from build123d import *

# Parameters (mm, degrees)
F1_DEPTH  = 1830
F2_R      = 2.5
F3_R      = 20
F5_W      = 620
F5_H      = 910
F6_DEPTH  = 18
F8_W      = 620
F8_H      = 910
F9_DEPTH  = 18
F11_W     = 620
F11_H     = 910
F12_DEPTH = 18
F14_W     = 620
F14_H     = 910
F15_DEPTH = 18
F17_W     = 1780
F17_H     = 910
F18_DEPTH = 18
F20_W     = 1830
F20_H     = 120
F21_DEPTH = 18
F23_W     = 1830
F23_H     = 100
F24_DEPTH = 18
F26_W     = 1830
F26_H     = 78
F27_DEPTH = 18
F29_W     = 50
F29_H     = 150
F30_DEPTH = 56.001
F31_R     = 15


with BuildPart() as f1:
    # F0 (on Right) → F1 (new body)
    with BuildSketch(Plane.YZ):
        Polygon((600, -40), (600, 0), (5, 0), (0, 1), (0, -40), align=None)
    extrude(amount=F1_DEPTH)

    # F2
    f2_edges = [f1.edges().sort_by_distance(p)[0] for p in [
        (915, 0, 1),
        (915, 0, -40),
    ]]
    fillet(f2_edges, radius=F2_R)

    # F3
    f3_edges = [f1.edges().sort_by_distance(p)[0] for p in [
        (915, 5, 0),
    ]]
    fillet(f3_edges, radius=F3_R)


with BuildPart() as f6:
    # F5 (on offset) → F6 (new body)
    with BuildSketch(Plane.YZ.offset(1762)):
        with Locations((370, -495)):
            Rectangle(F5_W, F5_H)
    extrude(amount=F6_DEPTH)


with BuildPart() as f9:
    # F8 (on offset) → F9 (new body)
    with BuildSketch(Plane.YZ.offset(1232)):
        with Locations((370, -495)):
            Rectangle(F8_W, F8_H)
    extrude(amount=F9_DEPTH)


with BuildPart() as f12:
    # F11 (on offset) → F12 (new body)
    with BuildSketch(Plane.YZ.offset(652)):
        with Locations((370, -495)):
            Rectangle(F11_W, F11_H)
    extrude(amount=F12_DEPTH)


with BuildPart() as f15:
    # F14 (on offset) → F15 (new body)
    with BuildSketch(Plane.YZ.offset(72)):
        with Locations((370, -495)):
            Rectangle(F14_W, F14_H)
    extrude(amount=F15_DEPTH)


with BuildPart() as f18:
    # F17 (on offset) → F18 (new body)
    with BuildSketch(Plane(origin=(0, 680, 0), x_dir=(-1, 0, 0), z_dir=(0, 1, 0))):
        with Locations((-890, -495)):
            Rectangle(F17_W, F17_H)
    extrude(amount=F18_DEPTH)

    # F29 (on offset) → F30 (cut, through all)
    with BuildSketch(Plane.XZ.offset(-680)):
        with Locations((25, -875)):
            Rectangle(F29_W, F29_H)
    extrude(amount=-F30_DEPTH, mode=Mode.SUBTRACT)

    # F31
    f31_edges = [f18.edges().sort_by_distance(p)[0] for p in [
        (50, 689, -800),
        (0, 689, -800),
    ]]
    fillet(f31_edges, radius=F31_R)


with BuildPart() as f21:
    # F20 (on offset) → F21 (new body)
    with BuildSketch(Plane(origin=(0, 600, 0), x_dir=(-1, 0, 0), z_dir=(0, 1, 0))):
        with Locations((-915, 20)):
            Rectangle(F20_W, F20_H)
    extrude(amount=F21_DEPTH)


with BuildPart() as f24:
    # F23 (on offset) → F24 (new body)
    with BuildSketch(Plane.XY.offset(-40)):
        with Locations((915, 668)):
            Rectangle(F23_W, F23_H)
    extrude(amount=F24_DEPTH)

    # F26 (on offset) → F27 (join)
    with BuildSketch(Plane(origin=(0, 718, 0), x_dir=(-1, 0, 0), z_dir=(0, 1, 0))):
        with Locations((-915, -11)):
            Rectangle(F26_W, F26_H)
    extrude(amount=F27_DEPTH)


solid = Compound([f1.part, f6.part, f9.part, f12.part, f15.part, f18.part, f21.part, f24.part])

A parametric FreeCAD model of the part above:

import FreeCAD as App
import Part
import Sketcher


def edges_at(feature, points):
    """Names of the edges that pass closest to the given points."""
    edges = feature.Shape.Edges
    near = lambda p: min(range(len(edges)), key=lambda i: edges[i].distToShape(Part.Vertex(*p))[0])
    return sorted({f"Edge{near(p) + 1}" for p in points})


def add_polygon(sketch, points):
    """Adds a closed chain of lines whose ends are joined by coincident constraints."""
    first, n = sketch.GeometryCount, len(points)
    for a, b in zip(points, points[1:] + points[:1]):
        sketch.addGeometry(Part.LineSegment(App.Vector(*a, 0), App.Vector(*b, 0)), False)
    for i in range(n):
        sketch.addConstraint(Sketcher.Constraint("Coincident", first + i, 2, first + (i + 1) % n, 1))

doc = App.newDocument("Part")
body = doc.addObject("PartDesign::Body", "Body")

# Sketch on YZ plane
sketch1 = body.newObject("Sketcher::SketchObject", "Sketch")
sketch1.AttachmentSupport = (doc.getObject("YZ_Plane"), [""])
sketch1.MapMode = "FlatFace"
add_polygon(sketch1, [(600, -40), (600, 0), (5, 0), (0, 1), (0, -40)])  # lines 0-4
sketch1.addConstraint(Sketcher.Constraint("Vertical", 0))
sketch1.addConstraint(Sketcher.Constraint("Horizontal", 1))
sketch1.addConstraint(Sketcher.Constraint("Vertical", 3))
sketch1.addConstraint(Sketcher.Constraint("Horizontal", 4))
sketch1.addConstraint(Sketcher.Constraint("PointOnObject", 0, 2, -1))
sketch1.addConstraint(Sketcher.Constraint("PointOnObject", 2, 2, -2))
sketch1.addConstraint(Sketcher.Constraint("DistanceX", 1, 2, 1, 1, 595.0))
sketch1.addConstraint(Sketcher.Constraint("DistanceX", 4, 1, 4, 2, 600.0))
sketch1.addConstraint(Sketcher.Constraint("DistanceY", 0, 1, 0, 2, 40.0))
sketch1.addConstraint(Sketcher.Constraint("DistanceY", 3, 2, 3, 1, 41.0))
pad1 = body.newObject("PartDesign::Pad", "Pad")
pad1.Profile = sketch1
pad1.Length = 1830
doc.recompute()

fillet = body.newObject("PartDesign::Fillet", "Fillet")
fillet.Base = (pad1, edges_at(pad1, [(915, 0, 1), (915, 0, -40)]))
fillet.Radius = 2.5
doc.recompute()

fillet2 = body.newObject("PartDesign::Fillet", "Fillet001")
fillet2.Base = (fillet, edges_at(fillet, [(915, 5, 0)]))
fillet2.Radius = 20
body2 = doc.addObject("PartDesign::Body", "Body001")

# Sketch on YZ plane
sketch2 = body2.newObject("Sketcher::SketchObject", "Sketch001")
sketch2.AttachmentSupport = (doc.getObject("YZ_Plane001"), [""])
sketch2.MapMode = "FlatFace"
sketch2.AttachmentOffset = App.Placement(App.Vector(0, 0, 1762), App.Rotation())
add_polygon(sketch2, [(60, -40), (60, -950), (680, -950), (680, -40)])  # lines 0-3
sketch2.addConstraint(Sketcher.Constraint("Vertical", 0))
sketch2.addConstraint(Sketcher.Constraint("Horizontal", 1))
sketch2.addConstraint(Sketcher.Constraint("Vertical", 2))
sketch2.addConstraint(Sketcher.Constraint("Horizontal", 3))
sketch2.addConstraint(Sketcher.Constraint("DistanceX", 1, 1, 1, 2, 620.0))
sketch2.addConstraint(Sketcher.Constraint("DistanceY", 0, 2, 0, 1, 910.0))
sketch2.addConstraint(Sketcher.Constraint("DistanceX", -1, 1, 0, 2, 60.0))
sketch2.addConstraint(Sketcher.Constraint("DistanceY", 0, 2, -1, 1, 950.0))
pad2 = body2.newObject("PartDesign::Pad", "Pad001")
pad2.Profile = sketch2
pad2.Length = 18
body3 = doc.addObject("PartDesign::Body", "Body002")

# Sketch on YZ plane
sketch3 = body3.newObject("Sketcher::SketchObject", "Sketch002")
sketch3.AttachmentSupport = (doc.getObject("YZ_Plane002"), [""])
sketch3.MapMode = "FlatFace"
sketch3.AttachmentOffset = App.Placement(App.Vector(0, 0, 1232), App.Rotation())
add_polygon(sketch3, [(60, -40), (60, -950), (680, -950), (680, -40)])  # lines 0-3
sketch3.addConstraint(Sketcher.Constraint("Vertical", 0))
sketch3.addConstraint(Sketcher.Constraint("Horizontal", 1))
sketch3.addConstraint(Sketcher.Constraint("Vertical", 2))
sketch3.addConstraint(Sketcher.Constraint("Horizontal", 3))
sketch3.addConstraint(Sketcher.Constraint("DistanceX", 1, 1, 1, 2, 620.0))
sketch3.addConstraint(Sketcher.Constraint("DistanceY", 0, 2, 0, 1, 910.0))
sketch3.addConstraint(Sketcher.Constraint("DistanceX", -1, 1, 0, 2, 60.0))
sketch3.addConstraint(Sketcher.Constraint("DistanceY", 0, 2, -1, 1, 950.0))
pad3 = body3.newObject("PartDesign::Pad", "Pad002")
pad3.Profile = sketch3
pad3.Length = 18
body4 = doc.addObject("PartDesign::Body", "Body003")

# Sketch on YZ plane
sketch4 = body4.newObject("Sketcher::SketchObject", "Sketch003")
sketch4.AttachmentSupport = (doc.getObject("YZ_Plane003"), [""])
sketch4.MapMode = "FlatFace"
sketch4.AttachmentOffset = App.Placement(App.Vector(0, 0, 652), App.Rotation())
add_polygon(sketch4, [(60, -40), (60, -950), (680, -950), (680, -40)])  # lines 0-3
sketch4.addConstraint(Sketcher.Constraint("Vertical", 0))
sketch4.addConstraint(Sketcher.Constraint("Horizontal", 1))
sketch4.addConstraint(Sketcher.Constraint("Vertical", 2))
sketch4.addConstraint(Sketcher.Constraint("Horizontal", 3))
sketch4.addConstraint(Sketcher.Constraint("DistanceX", 1, 1, 1, 2, 620.0))
sketch4.addConstraint(Sketcher.Constraint("DistanceY", 0, 2, 0, 1, 910.0))
sketch4.addConstraint(Sketcher.Constraint("DistanceX", -1, 1, 0, 2, 60.0))
sketch4.addConstraint(Sketcher.Constraint("DistanceY", 0, 2, -1, 1, 950.0))
pad4 = body4.newObject("PartDesign::Pad", "Pad003")
pad4.Profile = sketch4
pad4.Length = 18
body5 = doc.addObject("PartDesign::Body", "Body004")

# Sketch on YZ plane
sketch5 = body5.newObject("Sketcher::SketchObject", "Sketch004")
sketch5.AttachmentSupport = (doc.getObject("YZ_Plane004"), [""])
sketch5.MapMode = "FlatFace"
sketch5.AttachmentOffset = App.Placement(App.Vector(0, 0, 72), App.Rotation())
add_polygon(sketch5, [(60, -40), (60, -950), (680, -950), (680, -40)])  # lines 0-3
sketch5.addConstraint(Sketcher.Constraint("Vertical", 0))
sketch5.addConstraint(Sketcher.Constraint("Horizontal", 1))
sketch5.addConstraint(Sketcher.Constraint("Vertical", 2))
sketch5.addConstraint(Sketcher.Constraint("Horizontal", 3))
sketch5.addConstraint(Sketcher.Constraint("DistanceX", 1, 1, 1, 2, 620.0))
sketch5.addConstraint(Sketcher.Constraint("DistanceY", 0, 2, 0, 1, 910.0))
sketch5.addConstraint(Sketcher.Constraint("DistanceX", -1, 1, 0, 2, 60.0))
sketch5.addConstraint(Sketcher.Constraint("DistanceY", 0, 2, -1, 1, 950.0))
pad5 = body5.newObject("PartDesign::Pad", "Pad004")
pad5.Profile = sketch5
pad5.Length = 18
body6 = doc.addObject("PartDesign::Body", "Body005")

# Sketch on XZ plane
sketch6 = body6.newObject("Sketcher::SketchObject", "Sketch005")
sketch6.AttachmentSupport = (doc.getObject("XZ_Plane005"), [""])
sketch6.MapMode = "FlatFace"
sketch6.AttachmentOffset = App.Placement(App.Vector(0, 0, -680), App.Rotation())
add_polygon(sketch6, [(1780, -40), (1780, -950), (0, -950), (0, -40)])  # lines 0-3
sketch6.addConstraint(Sketcher.Constraint("Vertical", 0))
sketch6.addConstraint(Sketcher.Constraint("Horizontal", 1))
sketch6.addConstraint(Sketcher.Constraint("Vertical", 2))
sketch6.addConstraint(Sketcher.Constraint("Horizontal", 3))
sketch6.addConstraint(Sketcher.Constraint("PointOnObject", 1, 2, -2))
sketch6.addConstraint(Sketcher.Constraint("DistanceX", 1, 2, 1, 1, 1780.0))
sketch6.addConstraint(Sketcher.Constraint("DistanceY", 0, 2, 0, 1, 910.0))
sketch6.addConstraint(Sketcher.Constraint("DistanceY", 0, 2, -1, 1, 950.0))
pad6 = body6.newObject("PartDesign::Pad", "Pad005")
pad6.Profile = sketch6
pad6.Length = 18
pad6.Reversed = True

# Sketch on XZ plane
sketch7 = body6.newObject("Sketcher::SketchObject", "Sketch006")
sketch7.AttachmentSupport = (doc.getObject("XZ_Plane005"), [""])
sketch7.MapMode = "FlatFace"
sketch7.AttachmentOffset = App.Placement(App.Vector(0, 0, -680), App.Rotation())
add_polygon(sketch7, [(0, -800), (0, -950), (50, -950), (50, -800)])  # lines 0-3
sketch7.addConstraint(Sketcher.Constraint("Vertical", 0))
sketch7.addConstraint(Sketcher.Constraint("Horizontal", 1))
sketch7.addConstraint(Sketcher.Constraint("Vertical", 2))
sketch7.addConstraint(Sketcher.Constraint("Horizontal", 3))
sketch7.addConstraint(Sketcher.Constraint("PointOnObject", 0, 2, -2))
sketch7.addConstraint(Sketcher.Constraint("DistanceX", 1, 1, 1, 2, 50.0))
sketch7.addConstraint(Sketcher.Constraint("DistanceY", 0, 2, 0, 1, 150.0))
sketch7.addConstraint(Sketcher.Constraint("DistanceY", 0, 2, -1, 1, 950.0))
pocket1 = body6.newObject("PartDesign::Pocket", "Pocket")
pocket1.Profile = sketch7
pocket1.Type = "ThroughAll"
doc.recompute()

fillet3 = body6.newObject("PartDesign::Fillet", "Fillet002")
fillet3.Base = (pocket1, edges_at(pocket1, [(50, 689, -800), (0, 689, -800)]))
fillet3.Radius = 15
body7 = doc.addObject("PartDesign::Body", "Body006")

# Sketch on XZ plane
sketch8 = body7.newObject("Sketcher::SketchObject", "Sketch007")
sketch8.AttachmentSupport = (doc.getObject("XZ_Plane006"), [""])
sketch8.MapMode = "FlatFace"
sketch8.AttachmentOffset = App.Placement(App.Vector(0, 0, -600), App.Rotation())
add_polygon(sketch8, [(1830, 80), (1830, -40), (0, -40), (0, 80)])  # lines 0-3
sketch8.addConstraint(Sketcher.Constraint("Vertical", 0))
sketch8.addConstraint(Sketcher.Constraint("Horizontal", 1))
sketch8.addConstraint(Sketcher.Constraint("Vertical", 2))
sketch8.addConstraint(Sketcher.Constraint("Horizontal", 3))
sketch8.addConstraint(Sketcher.Constraint("PointOnObject", 1, 2, -2))
sketch8.addConstraint(Sketcher.Constraint("DistanceX", 1, 2, 1, 1, 1830.0))
sketch8.addConstraint(Sketcher.Constraint("DistanceY", 0, 2, 0, 1, 120.0))
sketch8.addConstraint(Sketcher.Constraint("DistanceY", 0, 2, -1, 1, 40.0))
pad7 = body7.newObject("PartDesign::Pad", "Pad006")
pad7.Profile = sketch8
pad7.Length = 18
pad7.Reversed = True
body8 = doc.addObject("PartDesign::Body", "Body007")

# Sketch on XY plane
sketch9 = body8.newObject("Sketcher::SketchObject", "Sketch008")
sketch9.AttachmentSupport = (doc.getObject("XY_Plane007"), [""])
sketch9.MapMode = "FlatFace"
sketch9.AttachmentOffset = App.Placement(App.Vector(0, 0, -40), App.Rotation())
add_polygon(sketch9, [(0, 718), (0, 618), (1830, 618), (1830, 718)])  # lines 0-3
sketch9.addConstraint(Sketcher.Constraint("Vertical", 0))
sketch9.addConstraint(Sketcher.Constraint("Horizontal", 1))
sketch9.addConstraint(Sketcher.Constraint("Vertical", 2))
sketch9.addConstraint(Sketcher.Constraint("Horizontal", 3))
sketch9.addConstraint(Sketcher.Constraint("PointOnObject", 0, 2, -2))
sketch9.addConstraint(Sketcher.Constraint("DistanceX", 1, 1, 1, 2, 1830.0))
sketch9.addConstraint(Sketcher.Constraint("DistanceY", 0, 2, 0, 1, 100.0))
sketch9.addConstraint(Sketcher.Constraint("DistanceY", -1, 1, 0, 2, 618.0))
pad8 = body8.newObject("PartDesign::Pad", "Pad007")
pad8.Profile = sketch9
pad8.Length = 18

# Sketch on XZ plane
sketch10 = body8.newObject("Sketcher::SketchObject", "Sketch009")
sketch10.AttachmentSupport = (doc.getObject("XZ_Plane007"), [""])
sketch10.MapMode = "FlatFace"
sketch10.AttachmentOffset = App.Placement(App.Vector(0, 0, -718), App.Rotation())
add_polygon(sketch10, [(1830, 28), (1830, -50), (0, -50), (0, 28)])  # lines 0-3
sketch10.addConstraint(Sketcher.Constraint("Vertical", 0))
sketch10.addConstraint(Sketcher.Constraint("Horizontal", 1))
sketch10.addConstraint(Sketcher.Constraint("Vertical", 2))
sketch10.addConstraint(Sketcher.Constraint("Horizontal", 3))
sketch10.addConstraint(Sketcher.Constraint("PointOnObject", 1, 2, -2))
sketch10.addConstraint(Sketcher.Constraint("DistanceX", 1, 2, 1, 1, 1830.0))
sketch10.addConstraint(Sketcher.Constraint("DistanceY", 0, 2, 0, 1, 78.0))
sketch10.addConstraint(Sketcher.Constraint("DistanceY", 0, 2, -1, 1, 50.0))
pad9 = body8.newObject("PartDesign::Pad", "Pad008")
pad9.Profile = sketch10
pad9.Length = 18
pad9.Reversed = True

doc.recompute()
